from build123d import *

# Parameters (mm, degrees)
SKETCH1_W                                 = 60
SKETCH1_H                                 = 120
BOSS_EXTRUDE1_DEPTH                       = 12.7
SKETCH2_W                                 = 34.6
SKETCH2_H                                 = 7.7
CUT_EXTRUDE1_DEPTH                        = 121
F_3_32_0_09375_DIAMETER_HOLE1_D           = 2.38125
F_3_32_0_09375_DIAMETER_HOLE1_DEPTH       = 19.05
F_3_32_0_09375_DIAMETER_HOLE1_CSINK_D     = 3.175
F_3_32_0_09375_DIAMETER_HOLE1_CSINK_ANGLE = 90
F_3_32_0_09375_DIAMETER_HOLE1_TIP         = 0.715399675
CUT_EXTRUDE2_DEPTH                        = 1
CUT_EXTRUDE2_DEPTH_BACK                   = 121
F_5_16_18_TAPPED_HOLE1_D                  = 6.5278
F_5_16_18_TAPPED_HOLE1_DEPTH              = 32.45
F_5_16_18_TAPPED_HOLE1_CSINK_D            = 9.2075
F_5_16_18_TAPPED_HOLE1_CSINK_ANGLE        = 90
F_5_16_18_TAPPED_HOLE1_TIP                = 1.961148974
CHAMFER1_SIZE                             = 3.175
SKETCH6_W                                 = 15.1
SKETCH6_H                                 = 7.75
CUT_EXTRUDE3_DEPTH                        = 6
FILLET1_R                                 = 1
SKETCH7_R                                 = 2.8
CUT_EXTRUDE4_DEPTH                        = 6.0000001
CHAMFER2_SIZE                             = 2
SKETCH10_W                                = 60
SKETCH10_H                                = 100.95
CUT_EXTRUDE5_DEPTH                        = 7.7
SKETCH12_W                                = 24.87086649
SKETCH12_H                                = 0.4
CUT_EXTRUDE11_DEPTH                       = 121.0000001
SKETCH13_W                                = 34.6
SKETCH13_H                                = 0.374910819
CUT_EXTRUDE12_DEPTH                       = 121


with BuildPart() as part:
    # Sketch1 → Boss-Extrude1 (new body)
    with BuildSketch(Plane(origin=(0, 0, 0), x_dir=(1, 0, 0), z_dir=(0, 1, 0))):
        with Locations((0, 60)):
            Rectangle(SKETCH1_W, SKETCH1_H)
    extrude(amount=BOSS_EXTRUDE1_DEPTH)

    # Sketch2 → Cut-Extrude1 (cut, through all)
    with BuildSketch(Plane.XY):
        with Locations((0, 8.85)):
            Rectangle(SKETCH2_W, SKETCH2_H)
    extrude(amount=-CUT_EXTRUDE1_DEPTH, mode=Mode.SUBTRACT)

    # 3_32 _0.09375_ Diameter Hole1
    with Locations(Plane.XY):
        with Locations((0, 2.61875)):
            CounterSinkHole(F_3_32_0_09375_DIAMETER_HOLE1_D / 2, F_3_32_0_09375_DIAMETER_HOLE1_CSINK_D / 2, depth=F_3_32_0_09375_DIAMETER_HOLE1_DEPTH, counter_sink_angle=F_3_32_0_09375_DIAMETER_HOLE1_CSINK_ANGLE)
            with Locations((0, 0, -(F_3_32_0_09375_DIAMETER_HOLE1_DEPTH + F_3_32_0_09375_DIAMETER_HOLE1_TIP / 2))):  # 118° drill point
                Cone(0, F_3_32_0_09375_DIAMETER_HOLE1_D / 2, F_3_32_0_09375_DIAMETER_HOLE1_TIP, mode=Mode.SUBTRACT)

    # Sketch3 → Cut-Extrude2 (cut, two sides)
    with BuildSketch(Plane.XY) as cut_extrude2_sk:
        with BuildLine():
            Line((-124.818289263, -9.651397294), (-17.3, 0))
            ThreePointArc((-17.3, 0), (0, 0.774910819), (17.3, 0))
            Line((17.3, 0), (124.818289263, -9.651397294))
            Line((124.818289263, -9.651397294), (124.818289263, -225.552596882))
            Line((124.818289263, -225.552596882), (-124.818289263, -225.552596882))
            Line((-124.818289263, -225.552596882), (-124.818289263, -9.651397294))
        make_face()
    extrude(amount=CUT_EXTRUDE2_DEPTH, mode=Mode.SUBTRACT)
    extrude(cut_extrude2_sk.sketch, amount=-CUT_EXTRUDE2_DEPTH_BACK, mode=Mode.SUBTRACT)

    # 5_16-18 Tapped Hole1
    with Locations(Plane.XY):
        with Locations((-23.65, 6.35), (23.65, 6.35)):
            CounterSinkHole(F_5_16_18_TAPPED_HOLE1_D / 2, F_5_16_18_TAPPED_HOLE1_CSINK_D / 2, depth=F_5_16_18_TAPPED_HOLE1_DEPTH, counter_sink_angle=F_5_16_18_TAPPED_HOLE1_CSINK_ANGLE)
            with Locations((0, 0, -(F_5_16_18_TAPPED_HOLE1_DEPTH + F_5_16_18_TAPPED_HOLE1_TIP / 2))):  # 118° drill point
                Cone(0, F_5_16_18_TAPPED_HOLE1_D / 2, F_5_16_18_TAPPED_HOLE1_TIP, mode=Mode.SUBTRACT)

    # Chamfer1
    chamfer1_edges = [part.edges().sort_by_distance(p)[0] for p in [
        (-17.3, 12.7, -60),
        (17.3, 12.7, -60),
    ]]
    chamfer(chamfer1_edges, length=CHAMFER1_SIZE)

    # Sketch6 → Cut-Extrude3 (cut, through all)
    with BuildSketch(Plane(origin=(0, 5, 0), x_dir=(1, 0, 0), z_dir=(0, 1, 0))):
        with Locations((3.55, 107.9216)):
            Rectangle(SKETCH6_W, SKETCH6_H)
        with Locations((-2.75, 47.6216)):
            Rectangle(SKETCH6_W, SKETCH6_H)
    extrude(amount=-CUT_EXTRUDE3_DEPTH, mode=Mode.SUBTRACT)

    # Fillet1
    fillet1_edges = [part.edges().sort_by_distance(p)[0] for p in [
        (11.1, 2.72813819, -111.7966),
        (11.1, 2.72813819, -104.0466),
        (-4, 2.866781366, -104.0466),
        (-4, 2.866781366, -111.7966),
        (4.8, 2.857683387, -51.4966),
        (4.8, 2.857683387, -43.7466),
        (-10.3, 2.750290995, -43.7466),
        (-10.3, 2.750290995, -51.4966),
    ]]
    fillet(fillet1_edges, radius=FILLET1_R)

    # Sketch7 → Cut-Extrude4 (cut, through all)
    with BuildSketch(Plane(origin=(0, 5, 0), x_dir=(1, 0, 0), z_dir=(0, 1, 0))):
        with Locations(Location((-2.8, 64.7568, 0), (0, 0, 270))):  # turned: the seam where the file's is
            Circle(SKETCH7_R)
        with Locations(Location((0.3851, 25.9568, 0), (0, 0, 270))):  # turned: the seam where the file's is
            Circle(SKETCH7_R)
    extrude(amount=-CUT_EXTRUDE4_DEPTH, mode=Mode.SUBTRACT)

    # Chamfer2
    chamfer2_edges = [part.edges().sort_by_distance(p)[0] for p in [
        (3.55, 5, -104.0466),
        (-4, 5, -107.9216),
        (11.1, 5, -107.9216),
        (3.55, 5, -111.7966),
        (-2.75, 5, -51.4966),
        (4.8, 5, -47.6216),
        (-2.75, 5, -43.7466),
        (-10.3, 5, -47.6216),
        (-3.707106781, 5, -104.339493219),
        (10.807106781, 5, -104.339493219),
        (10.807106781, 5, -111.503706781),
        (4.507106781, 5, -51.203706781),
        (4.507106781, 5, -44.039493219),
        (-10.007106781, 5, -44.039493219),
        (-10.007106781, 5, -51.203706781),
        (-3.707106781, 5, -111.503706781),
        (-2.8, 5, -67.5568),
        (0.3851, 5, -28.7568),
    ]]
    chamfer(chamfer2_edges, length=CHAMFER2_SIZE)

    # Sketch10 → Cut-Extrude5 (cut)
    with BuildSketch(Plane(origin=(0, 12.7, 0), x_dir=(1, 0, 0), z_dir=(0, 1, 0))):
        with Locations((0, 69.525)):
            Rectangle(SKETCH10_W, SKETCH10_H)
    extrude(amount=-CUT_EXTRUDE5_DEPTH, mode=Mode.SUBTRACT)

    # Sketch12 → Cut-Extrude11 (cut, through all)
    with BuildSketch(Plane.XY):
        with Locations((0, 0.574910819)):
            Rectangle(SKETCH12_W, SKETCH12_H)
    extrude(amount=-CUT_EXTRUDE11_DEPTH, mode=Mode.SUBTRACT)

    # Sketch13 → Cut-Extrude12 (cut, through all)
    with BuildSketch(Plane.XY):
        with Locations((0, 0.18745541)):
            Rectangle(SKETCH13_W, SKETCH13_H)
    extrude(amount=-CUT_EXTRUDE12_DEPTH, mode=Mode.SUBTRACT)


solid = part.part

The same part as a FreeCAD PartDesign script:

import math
import FreeCAD as App
import Part
import Sketcher
Q = App.Units.Quantity


def edges_at(feature, points):
    """Names of the edges that pass closest to the given points."""
    edges = feature.Shape.Edges
    near = lambda p: min(range(len(edges)), key=lambda i: edges[i].distToShape(Part.Vertex(*p))[0])
    return sorted({f"Edge{near(p) + 1}" for p in points})

doc = App.newDocument("Part")
body = doc.addObject("PartDesign::Body", "Body")

# Sketch on XZ plane
sketch1 = body.newObject("Sketcher::SketchObject", "Sketch")
sketch1.AttachmentSupport = (doc.getObject("XZ_Plane"), [""])
sketch1.MapMode = "FlatFace"
sketch1.addGeometry(Part.LineSegment(App.Vector(-30, -120, 0), App.Vector(-30, 0, 0)), False)
sketch1.addGeometry(Part.LineSegment(App.Vector(-30, 0, 0), App.Vector(30, 0, 0)), False)
sketch1.addGeometry(Part.LineSegment(App.Vector(30, 0, 0), App.Vector(30, -120, 0)), False)
sketch1.addGeometry(Part.LineSegment(App.Vector(30, -120, 0), App.Vector(-30, -120, 0)), False)
sketch1.addConstraint(Sketcher.Constraint("Coincident", 0, 2, 1, 1))
sketch1.addConstraint(Sketcher.Constraint("Coincident", 1, 2, 2, 1))
sketch1.addConstraint(Sketcher.Constraint("Coincident", 2, 2, 3, 1))
sketch1.addConstraint(Sketcher.Constraint("Coincident", 3, 2, 0, 1))
sketch1.addConstraint(Sketcher.Constraint("Vertical", 0))
sketch1.addConstraint(Sketcher.Constraint("Horizontal", 1))
sketch1.addConstraint(Sketcher.Constraint("Vertical", 2))
sketch1.addConstraint(Sketcher.Constraint("Horizontal", 3))
sketch1.addConstraint(Sketcher.Constraint("Symmetric", 0, 2, 1, 2, -1, 1))
sketch1.addConstraint(Sketcher.Constraint("DistanceX", 1, 1, 1, 2, Q("60 mm")))
sketch1.addConstraint(Sketcher.Constraint("DistanceY", 0, 1, 0, 2, Q("120 mm")))
pad1 = body.newObject("PartDesign::Pad", "Pad")
pad1.Profile = sketch1
pad1.Length = 12.7
pad1.Reversed = True

# Sketch on XY plane
sketch2 = body.newObject("Sketcher::SketchObject", "Sketch001")
sketch2.AttachmentSupport = (doc.getObject("XY_Plane"), [""])
sketch2.MapMode = "FlatFace"
sketch2.addGeometry(Part.LineSegment(App.Vector(-17, 13, 0), App.Vector(-17, 5, 0)), False)
sketch2.addGeometry(Part.LineSegment(App.Vector(-17, 5, 0), App.Vector(17, 5, 0)), False)
sketch2.addGeometry(Part.LineSegment(App.Vector(17, 5, 0), App.Vector(17, 13, 0)), False)
sketch2.addGeometry(Part.LineSegment(App.Vector(17, 13, 0), App.Vector(-17, 13, 0)), False)
sketch2.addConstraint(Sketcher.Constraint("Coincident", 0, 2, 1, 1))
sketch2.addConstraint(Sketcher.Constraint("Coincident", 1, 2, 2, 1))
sketch2.addConstraint(Sketcher.Constraint("Coincident", 2, 2, 3, 1))
sketch2.addConstraint(Sketcher.Constraint("Coincident", 3, 2, 0, 1))
sketch2.addConstraint(Sketcher.Constraint("Vertical", 0))
sketch2.addConstraint(Sketcher.Constraint("Horizontal", 1))
sketch2.addConstraint(Sketcher.Constraint("Vertical", 2))
sketch2.addConstraint(Sketcher.Constraint("Horizontal", 3))
sketch2.addConstraint(Sketcher.Constraint("DistanceX", 1, 1, 1, 2, Q("34.6 mm")))
sketch2.addConstraint(Sketcher.Constraint("DistanceY", 0, 2, 0, 1, Q("7.7 mm")))
sketch2.addConstraint(Sketcher.Constraint("DistanceY", -1, 1, 0, 2, Q("5 mm")))
sketch2.addConstraint(Sketcher.Constraint("DistanceX", 0, 2, -1, 1, Q("17.3 mm")))
pocket1 = body.newObject("PartDesign::Pocket", "Pocket")
pocket1.Profile = sketch2
pocket1.Type = "ThroughAll"

# Sketch on XY plane
sketch3 = body.newObject("Sketcher::SketchObject", "Sketch002")
sketch3.AttachmentSupport = (doc.getObject("XY_Plane"), [""])
sketch3.MapMode = "FlatFace"
sketch3.addGeometry(Part.Circle(App.Vector(0, 2.6, 0), App.Vector(0, 0, 1), 1.2), False)
sketch3.addConstraint(Sketcher.Constraint("PointOnObject", 0, 3, -2))
sketch3.addConstraint(Sketcher.Constraint("Diameter", 0, Q("2.38125 mm")))
sketch3.addConstraint(Sketcher.Constraint("DistanceY", -1, 1, 0, 3, Q("2.61875 mm")))
doc.recompute()
hole = body.newObject("PartDesign::Hole", "Hole")
hole.Profile = sketch3
hole.ThreadType = "None"
hole.Diameter = 2.38125
hole.DepthType = "Dimension"
hole.Depth = 19.05
hole.DrillPoint = "Angled"
hole.DrillPointAngle = 118
hole.HoleCutType = "Countersink"
hole.HoleCutDiameter = 3.175
hole.HoleCutCountersinkAngle = 90

# Sketch on XY plane
sketch4 = body.newObject("Sketcher::SketchObject", "Sketch003")
sketch4.AttachmentSupport = (doc.getObject("XY_Plane"), [""])
sketch4.MapMode = "FlatFace"
sketch4.addGeometry(Part.LineSegment(App.Vector(-17, 0, 0), App.Vector(-125, -10, 0)), False)
sketch4.addGeometry(Part.LineSegment(App.Vector(-125, -10, 0), App.Vector(-125, -226, 0)), False)
sketch4.addGeometry(Part.LineSegment(App.Vector(-125, -226, 0), App.Vector(125, -226, 0)), False)
sketch4.addGeometry(Part.LineSegment(App.Vector(125, -226, 0), App.Vector(125, -10, 0)), False)
sketch4.addGeometry(Part.LineSegment(App.Vector(125, -10, 0), App.Vector(17, 0, 0)), False)
sketch4.addGeometry(Part.ArcOfCircle(Part.Circle(App.Vector(0, -193, 0), App.Vector(0, 0, 1), 193), math.radians(84.87), math.radians(95.13)), False)
sketch4.addConstraint(Sketcher.Constraint("Coincident", 0, 2, 1, 1))
sketch4.addConstraint(Sketcher.Constraint("Coincident", 1, 2, 2, 1))
sketch4.addConstraint(Sketcher.Constraint("Coincident", 2, 2, 3, 1))
sketch4.addConstraint(Sketcher.Constraint("Coincident", 3, 2, 4, 1))
sketch4.addConstraint(Sketcher.Constraint("Tangent", 4, 2, 5, 1))
sketch4.addConstraint(Sketcher.Constraint("Tangent", 5, 2, 0, 1))
sketch4.addConstraint(Sketcher.Constraint("Vertical", 1))
sketch4.addConstraint(Sketcher.Constraint("Horizontal", 2))
sketch4.addConstraint(Sketcher.Constraint("Vertical", 3))
sketch4.addConstraint(Sketcher.Constraint("Symmetric", 4, 2, 5, 2, -1, 1))
sketch4.addConstraint(Sketcher.Constraint("Symmetric", 0, 2, 3, 2, -2))
sketch4.addConstraint(Sketcher.Constraint("Radius", 5, Q("193.5 mm")))
sketch4.addConstraint(Sketcher.Constraint("DistanceX", -1, 1, 4, 2, Q("17.3 mm")))
sketch4.addConstraint(Sketcher.Constraint("DistanceY", 1, 2, 1, 1, Q("215.9012 mm")))
sketch4.addConstraint(Sketcher.Constraint("Distance", 0, Q("107.9506 mm")))
pocket2 = body.newObject("PartDesign::Pocket", "Pocket001")
pocket2.Profile = sketch4
pocket2.Type = "ThroughAll"
pocket2.Midplane = True

# Sketch on XY plane
sketch5 = body.newObject("Sketcher::SketchObject", "Sketch004")
sketch5.AttachmentSupport = (doc.getObject("XY_Plane"), [""])
sketch5.MapMode = "FlatFace"
sketch5.addGeometry(Part.Circle(App.Vector(-23.6, 6.3, 0), App.Vector(0, 0, 1), 3.3), False)
sketch5.addGeometry(Part.Circle(App.Vector(23.6, 6.3, 0), App.Vector(0, 0, 1), 3.3), False)
sketch5.addConstraint(Sketcher.Constraint("Equal", 0, 1))
sketch5.addConstraint(Sketcher.Constraint("Symmetric", 0, 3, 1, 3, -2))
sketch5.addConstraint(Sketcher.Constraint("Diameter", 0, Q("6.5278 mm")))
sketch5.addConstraint(Sketcher.Constraint("DistanceX", 0, 3, 1, 3, Q("47.3 mm")))
sketch5.addConstraint(Sketcher.Constraint("DistanceY", -1, 1, 0, 3, Q("6.35 mm")))
doc.recompute()
hole2 = body.newObject("PartDesign::Hole", "Hole001")
hole2.Profile = sketch5
hole2.ThreadType = "None"
hole2.Diameter = 6.5278
hole2.DepthType = "Dimension"
hole2.Depth = 32.45
hole2.DrillPoint = "Angled"
hole2.DrillPointAngle = 118
hole2.HoleCutType = "Countersink"
hole2.HoleCutDiameter = 9.2075
hole2.HoleCutCountersinkAngle = 90
doc.recompute()

chamfer = body.newObject("PartDesign::Chamfer", "Chamfer")
chamfer.Base = (hole2, edges_at(hole2, [(-17.3, 12.7, -60), (17.3, 12.7, -60)]))
chamfer.Size = 3.175

# Sketch on XZ plane
sketch6 = body.newObject("Sketcher::SketchObject", "Sketch005")
sketch6.AttachmentSupport = (doc.getObject("XZ_Plane"), [""])
sketch6.MapMode = "FlatFace"
sketch6.AttachmentOffset = App.Placement(App.Vector(0, 0, -5), App.Rotation())
sketch6.addGeometry(Part.LineSegment(App.Vector(-4, -112, 0), App.Vector(-4, -104, 0)), False)
sketch6.addGeometry(Part.LineSegment(App.Vector(-4, -104, 0), App.Vector(11, -104, 0)), False)
sketch6.addGeometry(Part.LineSegment(App.Vector(11, -104, 0), App.Vector(11, -112, 0)), False)
sketch6.addGeometry(Part.LineSegment(App.Vector(11, -112, 0), App.Vector(-4, -112, 0)), False)
sketch6.addGeometry(Part.LineSegment(App.Vector(-10, -51, 0), App.Vector(-10, -44, 0)), False)
sketch6.addGeometry(Part.LineSegment(App.Vector(-10, -44, 0), App.Vector(5, -44, 0)), False)
sketch6.addGeometry(Part.LineSegment(App.Vector(5, -44, 0), App.Vector(5, -51, 0)), False)
sketch6.addGeometry(Part.LineSegment(App.Vector(5, -51, 0), App.Vector(-10, -51, 0)), False)
sketch6.addConstraint(Sketcher.Constraint("Coincident", 0, 2, 1, 1))
sketch6.addConstraint(Sketcher.Constraint("Coincident", 1, 2, 2, 1))
sketch6.addConstraint(Sketcher.Constraint("Coincident", 2, 2, 3, 1))
sketch6.addConstraint(Sketcher.Constraint("Coincident", 3, 2, 0, 1))
sketch6.addConstraint(Sketcher.Constraint("Coincident", 4, 2, 5, 1))
sketch6.addConstraint(Sketcher.Constraint("Coincident", 5, 2, 6, 1))
sketch6.addConstraint(Sketcher.Constraint("Coincident", 6, 2, 7, 1))
sketch6.addConstraint(Sketcher.Constraint("Coincident", 7, 2, 4, 1))
sketch6.addConstraint(Sketcher.Constraint("Vertical", 0))
sketch6.addConstraint(Sketcher.Constraint("Horizontal", 1))
sketch6.addConstraint(Sketcher.Constraint("Vertical", 2))
sketch6.addConstraint(Sketcher.Constraint("Horizontal", 3))
sketch6.addConstraint(Sketcher.Constraint("Vertical", 4))
sketch6.addConstraint(Sketcher.Constraint("Horizontal", 5))
sketch6.addConstraint(Sketcher.Constraint("Vertical", 6))
sketch6.addConstraint(Sketcher.Constraint("Horizontal", 7))
sketch6.addConstraint(Sketcher.Constraint("Equal", 3, 5))
sketch6.addConstraint(Sketcher.Constraint("Equal", 2, 4))
sketch6.addConstraint(Sketcher.Constraint("DistanceX", 1, 1, 1, 2, Q("15.1 mm")))
sketch6.addConstraint(Sketcher.Constraint("DistanceX", 0, 2, -1, 1, Q("4 mm")))
sketch6.addConstraint(Sketcher.Constraint("DistanceY", 0, 1, 0, 2, Q("7.75 mm")))
sketch6.addConstraint(Sketcher.Constraint("DistanceX", 4, 2, -1, 1, Q("10.3 mm")))
sketch6.addConstraint(Sketcher.Constraint("DistanceY", 0, 2, 4, 2, Q("60.3 mm")))
sketch6.addConstraint(Sketcher.Constraint("DistanceY", 0, 2, -1, 1, Q("104.0466 mm")))
pocket3 = body.newObject("PartDesign::Pocket", "Pocket002")
pocket3.Profile = sketch6
pocket3.Type = "ThroughAll"
pocket3.Reversed = True
doc.recompute()

fillet = body.newObject("PartDesign::Fillet", "Fillet")
fillet.Base = (pocket3, edges_at(pocket3, [
    (11.1, 2.728, -111.797),
    (11.1, 2.728, -104.047),
    (-4, 2.867, -104.047),
    (-4, 2.867, -111.797),
    (4.8, 2.858, -51.497),
    (4.8, 2.858, -43.747),
    (-10.3, 2.75, -43.747),
    (-10.3, 2.75, -51.497),
]))
fillet.Radius = 1

# Sketch on XZ plane
sketch7 = body.newObject("Sketcher::SketchObject", "Sketch006")
sketch7.AttachmentSupport = (doc.getObject("XZ_Plane"), [""])
sketch7.MapMode = "FlatFace"
sketch7.AttachmentOffset = App.Placement(App.Vector(0, 0, -5), App.Rotation())
sketch7.addGeometry(Part.Circle(App.Vector(-2.8, -64.8, 0), App.Vector(0, 0, 1), 2.8), False)
sketch7.addGeometry(Part.Circle(App.Vector(0.4, -26, 0), App.Vector(0, 0, 1), 2.8), False)
sketch7.addConstraint(Sketcher.Constraint("Equal", 0, 1))
sketch7.addConstraint(Sketcher.Constraint("Diameter", 0, Q("5.6 mm")))
sketch7.addConstraint(Sketcher.Constraint("DistanceX", 0, 3, -1, 1, Q("2.8 mm")))
sketch7.addConstraint(Sketcher.Constraint("DistanceY", 0, 3, 1, 3, Q("38.8 mm")))
sketch7.addConstraint(Sketcher.Constraint("DistanceY", 0, 3, -1, 1, Q("64.7568 mm")))
sketch7.addConstraint(Sketcher.Constraint("DistanceX", -1, 1, 1, 3, Q("0.3851 mm")))
pocket4 = body.newObject("PartDesign::Pocket", "Pocket003")
pocket4.Profile = sketch7
pocket4.Type = "ThroughAll"
pocket4.Reversed = True
doc.recompute()

chamfer2 = body.newObject("PartDesign::Chamfer", "Chamfer001")
chamfer2.Base = (pocket4, edges_at(pocket4, [
    (3.55, 5, -104.047),
    (-4, 5, -107.922),
    (11.1, 5, -107.922),
    (3.55, 5, -111.797),
    (-2.75, 5, -51.497),
    (4.8, 5, -47.622),
    (-2.75, 5, -43.747),
    (-10.3, 5, -47.622),
    (-3.707, 5, -104.339),
    (10.807, 5, -104.339),
    (10.807, 5, -111.504),
    (4.507, 5, -51.204),
    (4.507, 5, -44.039),
    (-10.007, 5, -44.039),
    (-10.007, 5, -51.204),
    (-3.707, 5, -111.504),
    (-2.8, 5, -67.557),
    (0.385, 5, -28.757),
]))
chamfer2.Size = 2

# Sketch on XZ plane
sketch8 = body.newObject("Sketcher::SketchObject", "Sketch007")
sketch8.AttachmentSupport = (doc.getObject("XZ_Plane"), [""])
sketch8.MapMode = "FlatFace"
sketch8.AttachmentOffset = App.Placement(App.Vector(0, 0, -12.7), App.Rotation())
sketch8.addGeometry(Part.LineSegment(App.Vector(-30, -120, 0), App.Vector(-30, -19, 0)), False)
sketch8.addGeometry(Part.LineSegment(App.Vector(-30, -19, 0), App.Vector(30, -19, 0)), False)
sketch8.addGeometry(Part.LineSegment(App.Vector(30, -19, 0), App.Vector(30, -120, 0)), False)
sketch8.addGeometry(Part.LineSegment(App.Vector(30, -120, 0), App.Vector(-30, -120, 0)), False)
sketch8.addConstraint(Sketcher.Constraint("Coincident", 0, 2, 1, 1))
sketch8.addConstraint(Sketcher.Constraint("Coincident", 1, 2, 2, 1))
sketch8.addConstraint(Sketcher.Constraint("Coincident", 2, 2, 3, 1))
sketch8.addConstraint(Sketcher.Constraint("Coincident", 3, 2, 0, 1))
sketch8.addConstraint(Sketcher.Constraint("Vertical", 0))
sketch8.addConstraint(Sketcher.Constraint("Horizontal", 1))
sketch8.addConstraint(Sketcher.Constraint("Vertical", 2))
sketch8.addConstraint(Sketcher.Constraint("Horizontal", 3))
sketch8.addConstraint(Sketcher.Constraint("DistanceX", 1, 1, 1, 2, Q("60 mm")))
sketch8.addConstraint(Sketcher.Constraint("DistanceX", 0, 2, -1, 1, Q("30 mm")))
sketch8.addConstraint(Sketcher.Constraint("DistanceY", 2, 2, -1, 1, Q("120 mm")))
sketch8.addConstraint(Sketcher.Constraint("DistanceY", 0, 1, 0, 2, Q("100.95 mm")))
pocket5 = body.newObject("PartDesign::Pocket", "Pocket004")
pocket5.Profile = sketch8
pocket5.Length = 7.7
pocket5.Reversed = True

# Sketch on XY plane
sketch9 = body.newObject("Sketcher::SketchObject", "Sketch008")
sketch9.AttachmentSupport = (doc.getObject("XY_Plane"), [""])
sketch9.MapMode = "FlatFace"
sketch9.addGeometry(Part.LineSegment(App.Vector(-12.44, 0.77, 0), App.Vector(-12.44, 0.37, 0)), False)
sketch9.addGeometry(Part.LineSegment(App.Vector(-12.44, 0.37, 0), App.Vector(12.44, 0.37, 0)), False)
sketch9.addGeometry(Part.LineSegment(App.Vector(12.44, 0.37, 0), App.Vector(12.44, 0.77, 0)), False)
sketch9.addGeometry(Part.LineSegment(App.Vector(12.44, 0.77, 0), App.Vector(-12.44, 0.77, 0)), False)
sketch9.addConstraint(Sketcher.Constraint("Coincident", 0, 2, 1, 1))
sketch9.addConstraint(Sketcher.Constraint("Coincident", 1, 2, 2, 1))
sketch9.addConstraint(Sketcher.Constraint("Coincident", 2, 2, 3, 1))
sketch9.addConstraint(Sketcher.Constraint("Coincident", 3, 2, 0, 1))
sketch9.addConstraint(Sketcher.Constraint("Vertical", 0))
sketch9.addConstraint(Sketcher.Constraint("Horizontal", 1))
sketch9.addConstraint(Sketcher.Constraint("Vertical", 2))
sketch9.addConstraint(Sketcher.Constraint("Horizontal", 3))
sketch9.addConstraint(Sketcher.Constraint("DistanceY", 0, 2, 0, 1, Q("0.4 mm")))
sketch9.addConstraint(Sketcher.Constraint("DistanceX", 1, 1, 1, 2, Q("24.870866 mm")))
sketch9.addConstraint(Sketcher.Constraint("DistanceY", -1, 1, 0, 2, Q("0.374911 mm")))
sketch9.addConstraint(Sketcher.Constraint("DistanceX", 0, 2, -1, 1, Q("12.435433 mm")))
pocket6 = body.newObject("PartDesign::Pocket", "Pocket005")
pocket6.Profile = sketch9
pocket6.Type = "ThroughAll"

# Sketch on XY plane
sketch10 = body.newObject("Sketcher::SketchObject", "Sketch009")
sketch10.AttachmentSupport = (doc.getObject("XY_Plane"), [""])
sketch10.MapMode = "FlatFace"
sketch10.addGeometry(Part.LineSegment(App.Vector(-17.3, 0.37, 0), App.Vector(-17.3, 0, 0)), False)
sketch10.addGeometry(Part.LineSegment(App.Vector(-17.3, 0, 0), App.Vector(17.3, 0, 0)), False)
sketch10.addGeometry(Part.LineSegment(App.Vector(17.3, 0, 0), App.Vector(17.3, 0.37, 0)), False)
sketch10.addGeometry(Part.LineSegment(App.Vector(17.3, 0.37, 0), App.Vector(-17.3, 0.37, 0)), False)
sketch10.addConstraint(Sketcher.Constraint("Coincident", 0, 2, 1, 1))
sketch10.addConstraint(Sketcher.Constraint("Coincident", 1, 2, 2, 1))
sketch10.addConstraint(Sketcher.Constraint("Coincident", 2, 2, 3, 1))
sketch10.addConstraint(Sketcher.Constraint("Coincident", 3, 2, 0, 1))
sketch10.addConstraint(Sketcher.Constraint("Vertical", 0))
sketch10.addConstraint(Sketcher.Constraint("Horizontal", 1))
sketch10.addConstraint(Sketcher.Constraint("Vertical", 2))
sketch10.addConstraint(Sketcher.Constraint("Horizontal", 3))
sketch10.addConstraint(Sketcher.Constraint("Symmetric", 0, 2, 1, 2, -1, 1))
sketch10.addConstraint(Sketcher.Constraint("DistanceX", 1, 1, 1, 2, Q("34.6 mm")))
sketch10.addConstraint(Sketcher.Constraint("DistanceY", 0, 2, 0, 1, Q("0.374911 mm")))
pocket7 = body.newObject("PartDesign::Pocket", "Pocket006")
pocket7.Profile = sketch10
pocket7.Type = "ThroughAll"

doc.recompute()
